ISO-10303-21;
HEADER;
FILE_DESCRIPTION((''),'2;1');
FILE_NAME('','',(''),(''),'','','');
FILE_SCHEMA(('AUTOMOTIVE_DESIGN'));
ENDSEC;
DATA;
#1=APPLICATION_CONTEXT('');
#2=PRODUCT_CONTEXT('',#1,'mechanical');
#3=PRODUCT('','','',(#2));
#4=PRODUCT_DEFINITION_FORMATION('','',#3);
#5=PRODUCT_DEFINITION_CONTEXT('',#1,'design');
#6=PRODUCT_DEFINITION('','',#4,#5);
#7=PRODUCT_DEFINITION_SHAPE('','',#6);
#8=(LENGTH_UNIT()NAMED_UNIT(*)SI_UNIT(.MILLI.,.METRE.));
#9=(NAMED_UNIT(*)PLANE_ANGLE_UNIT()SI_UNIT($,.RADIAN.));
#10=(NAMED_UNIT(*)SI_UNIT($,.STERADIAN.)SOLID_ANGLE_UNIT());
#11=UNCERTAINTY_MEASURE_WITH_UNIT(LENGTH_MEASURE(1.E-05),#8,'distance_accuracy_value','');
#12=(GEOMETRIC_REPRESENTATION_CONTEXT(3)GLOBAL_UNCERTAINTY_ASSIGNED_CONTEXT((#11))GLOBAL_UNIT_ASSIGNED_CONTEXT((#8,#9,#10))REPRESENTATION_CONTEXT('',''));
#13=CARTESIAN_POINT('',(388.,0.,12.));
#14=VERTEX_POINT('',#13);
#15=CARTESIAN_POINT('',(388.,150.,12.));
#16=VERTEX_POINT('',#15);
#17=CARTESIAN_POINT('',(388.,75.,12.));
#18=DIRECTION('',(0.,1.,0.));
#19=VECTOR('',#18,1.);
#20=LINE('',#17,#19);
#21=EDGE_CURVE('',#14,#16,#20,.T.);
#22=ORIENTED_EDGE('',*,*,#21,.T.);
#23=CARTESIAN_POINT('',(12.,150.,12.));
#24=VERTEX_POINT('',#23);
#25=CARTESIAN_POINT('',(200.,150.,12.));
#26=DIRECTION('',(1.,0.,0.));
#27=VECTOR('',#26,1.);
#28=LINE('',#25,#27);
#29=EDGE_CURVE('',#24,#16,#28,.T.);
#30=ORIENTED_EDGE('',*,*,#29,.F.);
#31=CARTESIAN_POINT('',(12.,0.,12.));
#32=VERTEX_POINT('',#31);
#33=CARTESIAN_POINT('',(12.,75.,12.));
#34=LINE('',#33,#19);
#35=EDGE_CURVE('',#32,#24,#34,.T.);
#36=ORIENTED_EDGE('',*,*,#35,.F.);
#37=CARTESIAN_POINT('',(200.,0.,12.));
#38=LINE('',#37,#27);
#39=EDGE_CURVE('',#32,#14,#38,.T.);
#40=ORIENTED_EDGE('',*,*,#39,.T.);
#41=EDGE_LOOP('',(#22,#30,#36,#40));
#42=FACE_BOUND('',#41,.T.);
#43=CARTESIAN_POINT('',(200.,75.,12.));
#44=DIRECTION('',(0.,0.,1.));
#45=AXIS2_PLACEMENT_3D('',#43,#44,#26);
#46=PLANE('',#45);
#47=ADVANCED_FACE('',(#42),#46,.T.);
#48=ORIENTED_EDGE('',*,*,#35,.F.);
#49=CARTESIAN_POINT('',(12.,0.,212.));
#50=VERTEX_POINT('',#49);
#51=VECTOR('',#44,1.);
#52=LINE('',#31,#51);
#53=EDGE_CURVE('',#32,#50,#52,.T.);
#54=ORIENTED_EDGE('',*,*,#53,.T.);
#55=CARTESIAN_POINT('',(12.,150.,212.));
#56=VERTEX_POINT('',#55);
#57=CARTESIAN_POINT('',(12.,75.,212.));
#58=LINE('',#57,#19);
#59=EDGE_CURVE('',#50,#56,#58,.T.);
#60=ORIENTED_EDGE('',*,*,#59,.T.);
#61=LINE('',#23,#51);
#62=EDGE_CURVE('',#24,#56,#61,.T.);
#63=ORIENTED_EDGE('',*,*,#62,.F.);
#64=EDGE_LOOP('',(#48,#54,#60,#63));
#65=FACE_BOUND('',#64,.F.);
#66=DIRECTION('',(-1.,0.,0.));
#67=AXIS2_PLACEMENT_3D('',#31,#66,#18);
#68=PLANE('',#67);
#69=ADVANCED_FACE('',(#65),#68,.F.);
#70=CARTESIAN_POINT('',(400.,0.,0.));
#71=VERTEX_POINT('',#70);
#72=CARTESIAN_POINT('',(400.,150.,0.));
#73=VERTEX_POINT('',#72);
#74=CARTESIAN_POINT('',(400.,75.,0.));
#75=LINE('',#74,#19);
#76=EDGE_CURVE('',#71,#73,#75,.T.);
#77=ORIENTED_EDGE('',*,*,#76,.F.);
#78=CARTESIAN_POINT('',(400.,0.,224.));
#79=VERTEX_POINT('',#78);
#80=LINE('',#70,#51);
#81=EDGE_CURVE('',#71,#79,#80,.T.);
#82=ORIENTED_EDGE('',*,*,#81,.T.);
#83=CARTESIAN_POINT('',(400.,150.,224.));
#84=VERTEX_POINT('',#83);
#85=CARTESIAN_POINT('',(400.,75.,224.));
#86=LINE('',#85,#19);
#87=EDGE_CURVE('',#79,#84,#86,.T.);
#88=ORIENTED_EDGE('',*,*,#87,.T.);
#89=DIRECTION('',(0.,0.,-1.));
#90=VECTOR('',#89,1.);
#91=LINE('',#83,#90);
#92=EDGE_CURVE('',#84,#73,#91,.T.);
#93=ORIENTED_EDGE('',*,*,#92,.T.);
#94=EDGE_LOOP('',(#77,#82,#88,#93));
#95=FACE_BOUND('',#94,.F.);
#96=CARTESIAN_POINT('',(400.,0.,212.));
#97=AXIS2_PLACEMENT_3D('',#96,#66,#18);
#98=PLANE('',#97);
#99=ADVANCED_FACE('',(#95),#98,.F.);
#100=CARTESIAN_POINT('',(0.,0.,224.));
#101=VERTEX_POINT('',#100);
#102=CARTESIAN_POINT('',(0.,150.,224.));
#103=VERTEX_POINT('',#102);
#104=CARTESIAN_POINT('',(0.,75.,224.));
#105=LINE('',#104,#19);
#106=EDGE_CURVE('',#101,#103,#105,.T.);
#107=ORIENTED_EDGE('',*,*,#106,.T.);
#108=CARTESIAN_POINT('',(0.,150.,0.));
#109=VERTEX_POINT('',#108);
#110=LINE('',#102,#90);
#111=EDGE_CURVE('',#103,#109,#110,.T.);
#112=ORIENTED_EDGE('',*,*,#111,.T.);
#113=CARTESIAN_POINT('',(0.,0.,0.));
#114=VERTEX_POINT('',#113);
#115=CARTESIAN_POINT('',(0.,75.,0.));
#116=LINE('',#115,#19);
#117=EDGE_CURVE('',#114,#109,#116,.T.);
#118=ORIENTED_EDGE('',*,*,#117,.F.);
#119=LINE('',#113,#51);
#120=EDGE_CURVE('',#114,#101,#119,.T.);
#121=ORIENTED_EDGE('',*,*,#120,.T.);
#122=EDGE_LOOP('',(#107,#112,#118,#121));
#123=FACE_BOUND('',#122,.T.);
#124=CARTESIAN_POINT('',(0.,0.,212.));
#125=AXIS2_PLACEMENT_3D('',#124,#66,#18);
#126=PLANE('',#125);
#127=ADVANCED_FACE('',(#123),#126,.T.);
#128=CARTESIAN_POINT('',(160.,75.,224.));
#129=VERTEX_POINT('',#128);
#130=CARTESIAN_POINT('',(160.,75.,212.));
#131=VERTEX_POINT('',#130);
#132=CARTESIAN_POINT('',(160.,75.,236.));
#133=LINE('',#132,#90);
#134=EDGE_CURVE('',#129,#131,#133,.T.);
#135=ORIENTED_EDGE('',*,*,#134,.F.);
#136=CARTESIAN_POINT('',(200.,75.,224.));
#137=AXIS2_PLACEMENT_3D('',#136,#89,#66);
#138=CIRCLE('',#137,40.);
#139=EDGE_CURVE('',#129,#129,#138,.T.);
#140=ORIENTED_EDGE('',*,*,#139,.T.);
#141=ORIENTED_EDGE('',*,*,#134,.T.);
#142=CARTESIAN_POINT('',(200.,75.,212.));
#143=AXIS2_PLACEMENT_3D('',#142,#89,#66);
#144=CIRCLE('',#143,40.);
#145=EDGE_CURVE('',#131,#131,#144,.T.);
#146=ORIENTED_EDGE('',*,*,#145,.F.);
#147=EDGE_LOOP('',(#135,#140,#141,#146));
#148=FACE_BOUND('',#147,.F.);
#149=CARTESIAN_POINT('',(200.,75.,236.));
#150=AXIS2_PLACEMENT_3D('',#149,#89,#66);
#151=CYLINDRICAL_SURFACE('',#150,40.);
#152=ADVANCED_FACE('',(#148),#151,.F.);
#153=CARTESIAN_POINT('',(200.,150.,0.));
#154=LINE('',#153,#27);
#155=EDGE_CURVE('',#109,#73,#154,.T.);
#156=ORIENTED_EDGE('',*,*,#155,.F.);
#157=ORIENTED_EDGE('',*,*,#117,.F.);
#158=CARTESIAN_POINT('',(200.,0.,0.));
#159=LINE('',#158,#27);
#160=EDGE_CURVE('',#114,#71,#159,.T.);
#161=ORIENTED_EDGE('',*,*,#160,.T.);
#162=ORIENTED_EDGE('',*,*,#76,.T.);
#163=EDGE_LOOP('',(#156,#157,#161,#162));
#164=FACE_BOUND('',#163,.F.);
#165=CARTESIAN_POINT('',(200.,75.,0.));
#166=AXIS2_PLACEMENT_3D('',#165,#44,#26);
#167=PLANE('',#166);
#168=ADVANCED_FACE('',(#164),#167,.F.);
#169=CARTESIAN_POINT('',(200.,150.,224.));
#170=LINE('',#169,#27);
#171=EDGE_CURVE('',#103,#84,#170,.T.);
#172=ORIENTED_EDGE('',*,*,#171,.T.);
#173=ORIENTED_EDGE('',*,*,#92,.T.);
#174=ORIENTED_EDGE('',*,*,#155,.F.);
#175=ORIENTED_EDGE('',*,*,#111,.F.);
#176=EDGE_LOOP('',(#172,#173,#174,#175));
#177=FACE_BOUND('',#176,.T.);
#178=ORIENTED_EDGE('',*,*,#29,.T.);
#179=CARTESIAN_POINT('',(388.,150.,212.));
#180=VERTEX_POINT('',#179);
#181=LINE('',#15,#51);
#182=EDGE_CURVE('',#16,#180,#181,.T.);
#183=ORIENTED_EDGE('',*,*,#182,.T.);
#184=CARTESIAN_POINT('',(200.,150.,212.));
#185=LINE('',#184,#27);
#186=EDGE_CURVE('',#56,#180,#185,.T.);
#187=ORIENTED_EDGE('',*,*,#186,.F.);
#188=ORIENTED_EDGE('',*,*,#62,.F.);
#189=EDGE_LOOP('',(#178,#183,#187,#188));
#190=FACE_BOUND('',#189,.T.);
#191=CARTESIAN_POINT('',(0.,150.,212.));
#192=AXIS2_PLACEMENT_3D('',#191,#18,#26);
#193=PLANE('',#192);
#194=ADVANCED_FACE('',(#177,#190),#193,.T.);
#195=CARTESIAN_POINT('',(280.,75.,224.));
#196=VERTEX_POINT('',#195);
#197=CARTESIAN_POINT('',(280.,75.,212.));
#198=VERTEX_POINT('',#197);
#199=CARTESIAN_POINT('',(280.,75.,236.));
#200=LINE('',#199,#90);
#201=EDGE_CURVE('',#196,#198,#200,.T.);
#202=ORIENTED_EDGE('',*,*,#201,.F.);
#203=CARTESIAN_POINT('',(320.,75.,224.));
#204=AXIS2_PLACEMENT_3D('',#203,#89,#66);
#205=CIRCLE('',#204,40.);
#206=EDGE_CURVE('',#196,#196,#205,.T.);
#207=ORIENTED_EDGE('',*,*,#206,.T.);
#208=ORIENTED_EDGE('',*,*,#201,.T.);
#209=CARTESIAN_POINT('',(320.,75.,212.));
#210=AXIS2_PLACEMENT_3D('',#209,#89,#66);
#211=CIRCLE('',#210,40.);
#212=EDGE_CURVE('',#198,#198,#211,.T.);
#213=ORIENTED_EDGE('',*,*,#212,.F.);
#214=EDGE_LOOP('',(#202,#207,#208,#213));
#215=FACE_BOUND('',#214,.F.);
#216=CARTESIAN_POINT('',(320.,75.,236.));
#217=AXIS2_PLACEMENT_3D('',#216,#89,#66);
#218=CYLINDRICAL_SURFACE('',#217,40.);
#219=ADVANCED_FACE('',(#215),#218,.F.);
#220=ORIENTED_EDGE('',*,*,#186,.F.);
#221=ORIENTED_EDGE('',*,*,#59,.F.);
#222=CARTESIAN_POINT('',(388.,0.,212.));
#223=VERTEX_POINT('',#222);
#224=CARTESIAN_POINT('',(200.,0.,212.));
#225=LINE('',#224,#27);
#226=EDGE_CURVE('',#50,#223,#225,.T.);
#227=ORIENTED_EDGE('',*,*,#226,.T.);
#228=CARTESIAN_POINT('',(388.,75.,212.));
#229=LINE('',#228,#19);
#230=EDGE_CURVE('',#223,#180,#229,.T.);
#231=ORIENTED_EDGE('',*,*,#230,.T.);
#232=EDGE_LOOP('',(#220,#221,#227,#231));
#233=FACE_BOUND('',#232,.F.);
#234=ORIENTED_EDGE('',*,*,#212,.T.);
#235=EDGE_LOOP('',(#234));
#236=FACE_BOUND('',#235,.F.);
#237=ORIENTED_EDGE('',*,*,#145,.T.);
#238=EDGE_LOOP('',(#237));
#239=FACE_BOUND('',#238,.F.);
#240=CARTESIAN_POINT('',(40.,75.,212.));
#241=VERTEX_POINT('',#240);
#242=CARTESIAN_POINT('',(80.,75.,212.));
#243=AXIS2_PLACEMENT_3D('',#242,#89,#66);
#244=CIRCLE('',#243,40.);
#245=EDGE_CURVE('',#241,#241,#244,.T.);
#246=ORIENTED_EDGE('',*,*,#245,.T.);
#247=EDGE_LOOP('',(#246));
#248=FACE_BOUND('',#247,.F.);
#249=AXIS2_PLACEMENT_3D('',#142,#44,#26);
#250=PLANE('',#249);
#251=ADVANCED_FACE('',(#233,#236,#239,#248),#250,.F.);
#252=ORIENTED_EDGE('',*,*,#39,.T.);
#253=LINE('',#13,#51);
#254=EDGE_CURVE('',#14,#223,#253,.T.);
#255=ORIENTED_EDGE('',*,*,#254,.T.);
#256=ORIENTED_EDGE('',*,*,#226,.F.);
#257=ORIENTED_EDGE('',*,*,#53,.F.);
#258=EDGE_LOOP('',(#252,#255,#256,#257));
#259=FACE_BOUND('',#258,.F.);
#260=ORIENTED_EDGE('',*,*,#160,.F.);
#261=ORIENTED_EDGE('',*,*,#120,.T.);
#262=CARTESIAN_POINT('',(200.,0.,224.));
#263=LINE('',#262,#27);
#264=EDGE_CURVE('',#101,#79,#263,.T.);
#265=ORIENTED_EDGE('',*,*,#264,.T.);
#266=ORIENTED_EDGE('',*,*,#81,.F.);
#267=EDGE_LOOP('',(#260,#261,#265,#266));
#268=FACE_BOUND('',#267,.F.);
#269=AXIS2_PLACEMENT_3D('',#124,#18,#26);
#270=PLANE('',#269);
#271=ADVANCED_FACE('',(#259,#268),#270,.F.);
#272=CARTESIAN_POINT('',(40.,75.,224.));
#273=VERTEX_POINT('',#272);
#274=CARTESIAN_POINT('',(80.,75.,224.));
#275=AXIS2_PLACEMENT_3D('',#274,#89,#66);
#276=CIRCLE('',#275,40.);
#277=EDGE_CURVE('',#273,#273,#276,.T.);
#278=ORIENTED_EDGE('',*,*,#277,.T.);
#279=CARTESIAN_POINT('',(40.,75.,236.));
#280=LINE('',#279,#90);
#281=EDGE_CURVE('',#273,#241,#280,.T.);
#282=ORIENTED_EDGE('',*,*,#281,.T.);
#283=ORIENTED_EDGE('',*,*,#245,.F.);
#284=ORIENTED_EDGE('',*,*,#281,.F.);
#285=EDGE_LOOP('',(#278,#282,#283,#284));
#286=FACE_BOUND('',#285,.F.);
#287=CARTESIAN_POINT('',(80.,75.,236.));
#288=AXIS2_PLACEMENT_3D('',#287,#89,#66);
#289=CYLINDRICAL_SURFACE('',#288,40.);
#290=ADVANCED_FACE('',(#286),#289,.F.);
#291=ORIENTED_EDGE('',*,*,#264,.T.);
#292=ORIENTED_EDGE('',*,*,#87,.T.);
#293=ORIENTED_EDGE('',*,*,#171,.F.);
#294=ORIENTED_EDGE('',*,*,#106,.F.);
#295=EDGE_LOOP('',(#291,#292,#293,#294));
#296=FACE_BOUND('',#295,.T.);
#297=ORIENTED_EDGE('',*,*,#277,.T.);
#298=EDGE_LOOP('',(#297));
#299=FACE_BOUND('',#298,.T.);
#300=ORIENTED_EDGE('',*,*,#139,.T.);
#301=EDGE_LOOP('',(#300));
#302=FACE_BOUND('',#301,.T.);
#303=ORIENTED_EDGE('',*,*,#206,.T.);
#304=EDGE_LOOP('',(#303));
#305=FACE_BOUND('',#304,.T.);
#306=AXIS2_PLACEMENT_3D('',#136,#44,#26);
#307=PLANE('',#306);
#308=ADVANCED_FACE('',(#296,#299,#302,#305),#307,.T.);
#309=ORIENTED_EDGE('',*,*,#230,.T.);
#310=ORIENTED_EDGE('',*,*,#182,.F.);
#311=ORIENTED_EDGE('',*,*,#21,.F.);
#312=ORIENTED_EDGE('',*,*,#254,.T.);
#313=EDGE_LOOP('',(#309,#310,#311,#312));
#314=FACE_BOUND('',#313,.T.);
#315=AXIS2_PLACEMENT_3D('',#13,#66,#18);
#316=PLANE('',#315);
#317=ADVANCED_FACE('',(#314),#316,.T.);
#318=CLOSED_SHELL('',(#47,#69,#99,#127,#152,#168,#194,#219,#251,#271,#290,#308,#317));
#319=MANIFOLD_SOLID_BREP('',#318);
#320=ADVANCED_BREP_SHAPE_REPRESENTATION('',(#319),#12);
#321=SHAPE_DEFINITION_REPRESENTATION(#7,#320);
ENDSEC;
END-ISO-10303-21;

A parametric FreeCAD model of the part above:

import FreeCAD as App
import Part
import Sketcher

doc = App.newDocument("Part")
params = doc.addObject("Spreadsheet::Sheet", "Params")
for row, (alias, value) in enumerate([
    ("sketch1_width", "400 mm"),
    ("sketch1_height", "150 mm"),
    ("pad1_length", "12 mm"),
    ("sketch2_width", "12 mm"),
    ("sketch2_height", "150 mm"),
    ("pad2_length", "200 mm"),
    ("sketch3_width", "12 mm"),
    ("sketch3_height", "150 mm"),
    ("pad3_length", "200 mm"),
    ("sketch4_width", "400 mm"),
    ("sketch4_height", "150 mm"),
    ("pad4_length", "12 mm"),
    ("sketch5_diameter", "80 mm"),
    ("hole_diameter", "80 mm"),
    ("hole_depth", "12 mm"),
    ("sketch6_diameter", "80 mm"),
    ("hole2_diameter", "80 mm"),
    ("hole2_depth", "12 mm"),
    ("sketch7_diameter", "80 mm"),
    ("hole3_diameter", "80 mm"),
    ("hole3_depth", "12 mm"),
], start=1):
    params.set(f"A{row}", alias)
    params.set(f"B{row}", "=" + value)
    params.setAlias(f"B{row}", alias)

body = doc.addObject("PartDesign::Body", "Body")

sketch1 = body.newObject("Sketcher::SketchObject", "Sketch")
sketch1.AttachmentSupport = (doc.getObject("XY_Plane"), [""])
sketch1.MapMode = "FlatFace"
sketch1.addGeometry([
    Part.LineSegment(App.Vector(0, 150, 0), App.Vector(0, 0, 0)),
    Part.LineSegment(App.Vector(0, 0, 0), App.Vector(400, 0, 0)),
    Part.LineSegment(App.Vector(400, 0, 0), App.Vector(400, 150, 0)),
    Part.LineSegment(App.Vector(400, 150, 0), App.Vector(0, 150, 0)),
], False)
sketch1.addConstraint([
    Sketcher.Constraint("Coincident", 0, 2, 1, 1),
    Sketcher.Constraint("Coincident", 1, 2, 2, 1),
    Sketcher.Constraint("Coincident", 2, 2, 3, 1),
    Sketcher.Constraint("Coincident", 3, 2, 0, 1),
    Sketcher.Constraint("Vertical", 0),
    Sketcher.Constraint("Horizontal", 1),
    Sketcher.Constraint("Vertical", 2),
    Sketcher.Constraint("Horizontal", 3),
    Sketcher.Constraint("Coincident", 0, 2, -1, 1),
    Sketcher.Constraint("DistanceX", 1, 1, 1, 2, 400.0),
    Sketcher.Constraint("DistanceY", 0, 2, 0, 1, 150.0),
])
sketch1.setExpression("Constraints[9]", "Params.sketch1_width")
sketch1.setExpression("Constraints[10]", "Params.sketch1_height")
pad1 = body.newObject("PartDesign::Pad", "Pad")
pad1.Profile = sketch1
pad1.setExpression("Length", "Params.pad1_length")

sketch2 = body.newObject("Sketcher::SketchObject", "Sketch001")
sketch2.AttachmentSupport = (doc.getObject("XY_Plane"), [""])
sketch2.MapMode = "FlatFace"
sketch2.AttachmentOffset = App.Placement(App.Vector(0, 0, 12), App.Rotation())
sketch2.addGeometry([
    Part.LineSegment(App.Vector(0, 150, 0), App.Vector(0, 0, 0)),
    Part.LineSegment(App.Vector(0, 0, 0), App.Vector(12, 0, 0)),
    Part.LineSegment(App.Vector(12, 0, 0), App.Vector(12, 150, 0)),
    Part.LineSegment(App.Vector(12, 150, 0), App.Vector(0, 150, 0)),
], False)
sketch2.addConstraint([
    Sketcher.Constraint("Coincident", 0, 2, 1, 1),
    Sketcher.Constraint("Coincident", 1, 2, 2, 1),
    Sketcher.Constraint("Coincident", 2, 2, 3, 1),
    Sketcher.Constraint("Coincident", 3, 2, 0, 1),
    Sketcher.Constraint("Vertical", 0),
    Sketcher.Constraint("Horizontal", 1),
    Sketcher.Constraint("Vertical", 2),
    Sketcher.Constraint("Horizontal", 3),
    Sketcher.Constraint("Coincident", 0, 2, -1, 1),
    Sketcher.Constraint("DistanceX", 1, 1, 1, 2, 12.0),
    Sketcher.Constraint("DistanceY", 0, 2, 0, 1, 150.0),
])
sketch2.setExpression("Constraints[9]", "Params.sketch2_width")
sketch2.setExpression("Constraints[10]", "Params.sketch2_height")
pad2 = body.newObject("PartDesign::Pad", "Pad001")
pad2.Profile = sketch2
pad2.setExpression("Length", "Params.pad2_length")

sketch3 = body.newObject("Sketcher::SketchObject", "Sketch002")
sketch3.AttachmentSupport = (doc.getObject("XY_Plane"), [""])
sketch3.MapMode = "FlatFace"
sketch3.AttachmentOffset = App.Placement(App.Vector(0, 0, 12), App.Rotation())
sketch3.addGeometry([
    Part.LineSegment(App.Vector(388, 150, 0), App.Vector(388, 0, 0)),
    Part.LineSegment(App.Vector(388, 0, 0), App.Vector(400, 0, 0)),
    Part.LineSegment(App.Vector(400, 0, 0), App.Vector(400, 150, 0)),
    Part.LineSegment(App.Vector(400, 150, 0), App.Vector(388, 150, 0)),
], False)
sketch3.addConstraint([
    Sketcher.Constraint("Coincident", 0, 2, 1, 1),
    Sketcher.Constraint("Coincident", 1, 2, 2, 1),
    Sketcher.Constraint("Coincident", 2, 2, 3, 1),
    Sketcher.Constraint("Coincident", 3, 2, 0, 1),
    Sketcher.Constraint("Vertical", 0),
    Sketcher.Constraint("Horizontal", 1),
    Sketcher.Constraint("Vertical", 2),
    Sketcher.Constraint("Horizontal", 3),
    Sketcher.Constraint("PointOnObject", 0, 2, -1),
    Sketcher.Constraint("DistanceX", 1, 1, 1, 2, 12.0),
    Sketcher.Constraint("DistanceY", 0, 2, 0, 1, 150.0),
    Sketcher.Constraint("DistanceX", -1, 1, 0, 2, 388.0),
])
sketch3.setExpression("Constraints[9]", "Params.sketch3_width")
sketch3.setExpression("Constraints[10]", "Params.sketch3_height")
pad3 = body.newObject("PartDesign::Pad", "Pad002")
pad3.Profile = sketch3
pad3.setExpression("Length", "Params.pad3_length")

sketch4 = body.newObject("Sketcher::SketchObject", "Sketch003")
sketch4.AttachmentSupport = (doc.getObject("XY_Plane"), [""])
sketch4.MapMode = "FlatFace"
sketch4.AttachmentOffset = App.Placement(App.Vector(0, 0, 212), App.Rotation())
sketch4.addGeometry([
    Part.LineSegment(App.Vector(0, 150, 0), App.Vector(0, 0, 0)),
    Part.LineSegment(App.Vector(0, 0, 0), App.Vector(400, 0, 0)),
    Part.LineSegment(App.Vector(400, 0, 0), App.Vector(400, 150, 0)),
    Part.LineSegment(App.Vector(400, 150, 0), App.Vector(0, 150, 0)),
], False)
sketch4.addConstraint([
    Sketcher.Constraint("Coincident", 0, 2, 1, 1),
    Sketcher.Constraint("Coincident", 1, 2, 2, 1),
    Sketcher.Constraint("Coincident", 2, 2, 3, 1),
    Sketcher.Constraint("Coincident", 3, 2, 0, 1),
    Sketcher.Constraint("Vertical", 0),
    Sketcher.Constraint("Horizontal", 1),
    Sketcher.Constraint("Vertical", 2),
    Sketcher.Constraint("Horizontal", 3),
    Sketcher.Constraint("Coincident", 0, 2, -1, 1),
    Sketcher.Constraint("DistanceX", 1, 1, 1, 2, 400.0),
    Sketcher.Constraint("DistanceY", 0, 2, 0, 1, 150.0),
])
sketch4.setExpression("Constraints[9]", "Params.sketch4_width")
sketch4.setExpression("Constraints[10]", "Params.sketch4_height")
pad4 = body.newObject("PartDesign::Pad", "Pad003")
pad4.Profile = sketch4
pad4.setExpression("Length", "Params.pad4_length")

sketch5 = body.newObject("Sketcher::SketchObject", "Sketch004")
sketch5.AttachmentSupport = (doc.getObject("XY_Plane"), [""])
sketch5.MapMode = "FlatFace"
sketch5.AttachmentOffset = App.Placement(App.Vector(0, 0, 224), App.Rotation())
sketch5.addGeometry(Part.Circle(App.Vector(80, 75, 0), App.Vector(0, 0, 1), 40), False)
sketch5.addConstraint([
    Sketcher.Constraint("Diameter", 0, 80.0),
    Sketcher.Constraint("DistanceX", -1, 1, 0, 3, 80.0),
    Sketcher.Constraint("DistanceY", -1, 1, 0, 3, 75.0),
])
sketch5.setExpression("Constraints[0]", "Params.sketch5_diameter")
doc.recompute()
hole = body.newObject("PartDesign::Hole", "Hole")
hole.Profile = sketch5
hole.ThreadType = "None"
hole.setExpression("Diameter", "Params.hole_diameter")
hole.DepthType = "Dimension"
hole.setExpression("Depth", "Params.hole_depth")
hole.DrillPoint = "Flat"

sketch6 = body.newObject("Sketcher::SketchObject", "Sketch005")
sketch6.AttachmentSupport = (doc.getObject("XY_Plane"), [""])
sketch6.MapMode = "FlatFace"
sketch6.AttachmentOffset = App.Placement(App.Vector(0, 0, 224), App.Rotation())
sketch6.addGeometry(Part.Circle(App.Vector(200, 75, 0), App.Vector(0, 0, 1), 40), False)
sketch6.addConstraint([
    Sketcher.Constraint("Diameter", 0, 80.0),
    Sketcher.Constraint("DistanceX", -1, 1, 0, 3, 200.0),
    Sketcher.Constraint("DistanceY", -1, 1, 0, 3, 75.0),
])
sketch6.setExpression("Constraints[0]", "Params.sketch6_diameter")
doc.recompute()
hole2 = body.newObject("PartDesign::Hole", "Hole001")
hole2.Profile = sketch6
hole2.ThreadType = "None"
hole2.setExpression("Diameter", "Params.hole2_diameter")
hole2.DepthType = "Dimension"
hole2.setExpression("Depth", "Params.hole2_depth")
hole2.DrillPoint = "Flat"

sketch7 = body.newObject("Sketcher::SketchObject", "Sketch006")
sketch7.AttachmentSupport = (doc.getObject("XY_Plane"), [""])
sketch7.MapMode = "FlatFace"
sketch7.AttachmentOffset = App.Placement(App.Vector(0, 0, 224), App.Rotation())
sketch7.addGeometry(Part.Circle(App.Vector(320, 75, 0), App.Vector(0, 0, 1), 40), False)
sketch7.addConstraint([
    Sketcher.Constraint("Diameter", 0, 80.0),
    Sketcher.Constraint("DistanceX", -1, 1, 0, 3, 320.0),
    Sketcher.Constraint("DistanceY", -1, 1, 0, 3, 75.0),
])
sketch7.setExpression("Constraints[0]", "Params.sketch7_diameter")
doc.recompute()
hole3 = body.newObject("PartDesign::Hole", "Hole002")
hole3.Profile = sketch7
hole3.ThreadType = "None"
hole3.setExpression("Diameter", "Params.hole3_diameter")
hole3.DepthType = "Dimension"
hole3.setExpression("Depth", "Params.hole3_depth")
hole3.DrillPoint = "Flat"

doc.recompute()
